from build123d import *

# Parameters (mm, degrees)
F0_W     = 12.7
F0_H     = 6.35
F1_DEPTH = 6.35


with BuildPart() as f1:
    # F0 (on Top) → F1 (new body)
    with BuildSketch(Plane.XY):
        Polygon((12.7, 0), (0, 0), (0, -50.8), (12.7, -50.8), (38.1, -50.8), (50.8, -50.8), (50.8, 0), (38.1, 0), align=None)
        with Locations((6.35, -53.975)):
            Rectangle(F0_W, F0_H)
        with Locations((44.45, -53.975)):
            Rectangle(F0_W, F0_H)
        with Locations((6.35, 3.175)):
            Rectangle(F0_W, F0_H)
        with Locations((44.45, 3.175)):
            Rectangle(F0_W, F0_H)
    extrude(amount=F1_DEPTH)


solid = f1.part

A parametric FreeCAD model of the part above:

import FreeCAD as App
import Part
import Sketcher
Q = App.Units.Quantity

doc = App.newDocument("Part")
params = doc.addObject("Spreadsheet::Sheet", "Params")
for row, (alias, value) in enumerate([
    ("sketch1_width", "1 in"),
    ("sketch1_width2", "0.5 in"),
    ("sketch1_height", "2.5 in"),
    ("pad1_length", "0.25 in"),
], start=1):
    params.set(f"A{row}", alias)
    params.set(f"B{row}", "=" + value)
    params.setAlias(f"B{row}", alias)

body = doc.addObject("PartDesign::Body", "Body")

sketch1 = doc.addObject("Sketcher::SketchObject", "Sketch")
body.addObject(sketch1)
sketch1.AttachmentSupport = (doc.XY_Plane, [""])
sketch1.MapMode = "FlatFace"
sketch1.addGeometry([
    Part.LineSegment(App.Vector(0, -57, 0), App.Vector(13, -57, 0)),
    Part.LineSegment(App.Vector(13, -57, 0), App.Vector(13, -51, 0)),
    Part.LineSegment(App.Vector(13, -51, 0), App.Vector(38, -51, 0)),
    Part.LineSegment(App.Vector(38, -51, 0), App.Vector(38, -57, 0)),
    Part.LineSegment(App.Vector(38, -57, 0), App.Vector(51, -57, 0)),
    Part.LineSegment(App.Vector(51, -57, 0), App.Vector(51, 6, 0)),
    Part.LineSegment(App.Vector(51, 6, 0), App.Vector(38, 6, 0)),
    Part.LineSegment(App.Vector(38, 6, 0), App.Vector(38, 0, 0)),
    Part.LineSegment(App.Vector(38, 0, 0), App.Vector(13, 0, 0)),
    Part.LineSegment(App.Vector(13, 0, 0), App.Vector(13, 6, 0)),
    Part.LineSegment(App.Vector(13, 6, 0), App.Vector(0, 6, 0)),
    Part.LineSegment(App.Vector(0, 6, 0), App.Vector(0, -57, 0)),
], False)
sketch1.addConstraint([
    Sketcher.Constraint("Coincident", 0, 2, 1, 1),
    Sketcher.Constraint("Coincident", 1, 2, 2, 1),
    Sketcher.Constraint("Coincident", 2, 2, 3, 1),
    Sketcher.Constraint("Coincident", 3, 2, 4, 1),
    Sketcher.Constraint("Coincident", 4, 2, 5, 1),
    Sketcher.Constraint("Coincident", 5, 2, 6, 1),
    Sketcher.Constraint("Coincident", 6, 2, 7, 1),
    Sketcher.Constraint("Coincident", 7, 2, 8, 1),
    Sketcher.Constraint("Coincident", 8, 2, 9, 1),
    Sketcher.Constraint("Coincident", 9, 2, 10, 1),
    Sketcher.Constraint("Coincident", 10, 2, 11, 1),
    Sketcher.Constraint("Coincident", 11, 2, 0, 1),
    Sketcher.Constraint("Horizontal", 0),
    Sketcher.Constraint("Vertical", 1),
    Sketcher.Constraint("Horizontal", 2),
    Sketcher.Constraint("Vertical", 3),
    Sketcher.Constraint("Horizontal", 4),
    Sketcher.Constraint("Vertical", 5),
    Sketcher.Constraint("Horizontal", 6),
    Sketcher.Constraint("Vertical", 7),
    Sketcher.Constraint("Horizontal", 8),
    Sketcher.Constraint("Vertical", 9),
    Sketcher.Constraint("Horizontal", 10),
    Sketcher.Constraint("Vertical", 11),
    Sketcher.Constraint("PointOnObject", 7, 2, -1),
    Sketcher.Constraint("PointOnObject", 10, 2, -2),
    Sketcher.Constraint("Horizontal", 0, 2, 3, 2),
    Sketcher.Constraint("Horizontal", 6, 2, 9, 2),
    Sketcher.Constraint("Vertical", 3, 2, 6, 2),
    Sketcher.Constraint("Vertical", 1, 2, 8, 2),
    Sketcher.Constraint("Equal", 0, 4),
    Sketcher.Constraint("Equal", 3, 7),
    Sketcher.Constraint("DistanceX", 2, 1, 2, 2, Q("1 in")),
    Sketcher.Constraint("DistanceX", 0, 1, 0, 2, Q("0.5 in")),
    Sketcher.Constraint("DistanceY", 5, 1, 5, 2, Q("2.5 in")),
    Sketcher.Constraint("DistanceY", 1, 2, -1, 1, Q("2 in")),
])
sketch1.setExpression("Constraints[32]", "Params.sketch1_width")
sketch1.setExpression("Constraints[33]", "Params.sketch1_width2")
sketch1.setExpression("Constraints[34]", "Params.sketch1_height")
pad1 = doc.addObject("PartDesign::Pad", "Pad")
body.addObject(pad1)
pad1.Profile = sketch1
pad1.setExpression("Length", "Params.pad1_length")

doc.recompute()
